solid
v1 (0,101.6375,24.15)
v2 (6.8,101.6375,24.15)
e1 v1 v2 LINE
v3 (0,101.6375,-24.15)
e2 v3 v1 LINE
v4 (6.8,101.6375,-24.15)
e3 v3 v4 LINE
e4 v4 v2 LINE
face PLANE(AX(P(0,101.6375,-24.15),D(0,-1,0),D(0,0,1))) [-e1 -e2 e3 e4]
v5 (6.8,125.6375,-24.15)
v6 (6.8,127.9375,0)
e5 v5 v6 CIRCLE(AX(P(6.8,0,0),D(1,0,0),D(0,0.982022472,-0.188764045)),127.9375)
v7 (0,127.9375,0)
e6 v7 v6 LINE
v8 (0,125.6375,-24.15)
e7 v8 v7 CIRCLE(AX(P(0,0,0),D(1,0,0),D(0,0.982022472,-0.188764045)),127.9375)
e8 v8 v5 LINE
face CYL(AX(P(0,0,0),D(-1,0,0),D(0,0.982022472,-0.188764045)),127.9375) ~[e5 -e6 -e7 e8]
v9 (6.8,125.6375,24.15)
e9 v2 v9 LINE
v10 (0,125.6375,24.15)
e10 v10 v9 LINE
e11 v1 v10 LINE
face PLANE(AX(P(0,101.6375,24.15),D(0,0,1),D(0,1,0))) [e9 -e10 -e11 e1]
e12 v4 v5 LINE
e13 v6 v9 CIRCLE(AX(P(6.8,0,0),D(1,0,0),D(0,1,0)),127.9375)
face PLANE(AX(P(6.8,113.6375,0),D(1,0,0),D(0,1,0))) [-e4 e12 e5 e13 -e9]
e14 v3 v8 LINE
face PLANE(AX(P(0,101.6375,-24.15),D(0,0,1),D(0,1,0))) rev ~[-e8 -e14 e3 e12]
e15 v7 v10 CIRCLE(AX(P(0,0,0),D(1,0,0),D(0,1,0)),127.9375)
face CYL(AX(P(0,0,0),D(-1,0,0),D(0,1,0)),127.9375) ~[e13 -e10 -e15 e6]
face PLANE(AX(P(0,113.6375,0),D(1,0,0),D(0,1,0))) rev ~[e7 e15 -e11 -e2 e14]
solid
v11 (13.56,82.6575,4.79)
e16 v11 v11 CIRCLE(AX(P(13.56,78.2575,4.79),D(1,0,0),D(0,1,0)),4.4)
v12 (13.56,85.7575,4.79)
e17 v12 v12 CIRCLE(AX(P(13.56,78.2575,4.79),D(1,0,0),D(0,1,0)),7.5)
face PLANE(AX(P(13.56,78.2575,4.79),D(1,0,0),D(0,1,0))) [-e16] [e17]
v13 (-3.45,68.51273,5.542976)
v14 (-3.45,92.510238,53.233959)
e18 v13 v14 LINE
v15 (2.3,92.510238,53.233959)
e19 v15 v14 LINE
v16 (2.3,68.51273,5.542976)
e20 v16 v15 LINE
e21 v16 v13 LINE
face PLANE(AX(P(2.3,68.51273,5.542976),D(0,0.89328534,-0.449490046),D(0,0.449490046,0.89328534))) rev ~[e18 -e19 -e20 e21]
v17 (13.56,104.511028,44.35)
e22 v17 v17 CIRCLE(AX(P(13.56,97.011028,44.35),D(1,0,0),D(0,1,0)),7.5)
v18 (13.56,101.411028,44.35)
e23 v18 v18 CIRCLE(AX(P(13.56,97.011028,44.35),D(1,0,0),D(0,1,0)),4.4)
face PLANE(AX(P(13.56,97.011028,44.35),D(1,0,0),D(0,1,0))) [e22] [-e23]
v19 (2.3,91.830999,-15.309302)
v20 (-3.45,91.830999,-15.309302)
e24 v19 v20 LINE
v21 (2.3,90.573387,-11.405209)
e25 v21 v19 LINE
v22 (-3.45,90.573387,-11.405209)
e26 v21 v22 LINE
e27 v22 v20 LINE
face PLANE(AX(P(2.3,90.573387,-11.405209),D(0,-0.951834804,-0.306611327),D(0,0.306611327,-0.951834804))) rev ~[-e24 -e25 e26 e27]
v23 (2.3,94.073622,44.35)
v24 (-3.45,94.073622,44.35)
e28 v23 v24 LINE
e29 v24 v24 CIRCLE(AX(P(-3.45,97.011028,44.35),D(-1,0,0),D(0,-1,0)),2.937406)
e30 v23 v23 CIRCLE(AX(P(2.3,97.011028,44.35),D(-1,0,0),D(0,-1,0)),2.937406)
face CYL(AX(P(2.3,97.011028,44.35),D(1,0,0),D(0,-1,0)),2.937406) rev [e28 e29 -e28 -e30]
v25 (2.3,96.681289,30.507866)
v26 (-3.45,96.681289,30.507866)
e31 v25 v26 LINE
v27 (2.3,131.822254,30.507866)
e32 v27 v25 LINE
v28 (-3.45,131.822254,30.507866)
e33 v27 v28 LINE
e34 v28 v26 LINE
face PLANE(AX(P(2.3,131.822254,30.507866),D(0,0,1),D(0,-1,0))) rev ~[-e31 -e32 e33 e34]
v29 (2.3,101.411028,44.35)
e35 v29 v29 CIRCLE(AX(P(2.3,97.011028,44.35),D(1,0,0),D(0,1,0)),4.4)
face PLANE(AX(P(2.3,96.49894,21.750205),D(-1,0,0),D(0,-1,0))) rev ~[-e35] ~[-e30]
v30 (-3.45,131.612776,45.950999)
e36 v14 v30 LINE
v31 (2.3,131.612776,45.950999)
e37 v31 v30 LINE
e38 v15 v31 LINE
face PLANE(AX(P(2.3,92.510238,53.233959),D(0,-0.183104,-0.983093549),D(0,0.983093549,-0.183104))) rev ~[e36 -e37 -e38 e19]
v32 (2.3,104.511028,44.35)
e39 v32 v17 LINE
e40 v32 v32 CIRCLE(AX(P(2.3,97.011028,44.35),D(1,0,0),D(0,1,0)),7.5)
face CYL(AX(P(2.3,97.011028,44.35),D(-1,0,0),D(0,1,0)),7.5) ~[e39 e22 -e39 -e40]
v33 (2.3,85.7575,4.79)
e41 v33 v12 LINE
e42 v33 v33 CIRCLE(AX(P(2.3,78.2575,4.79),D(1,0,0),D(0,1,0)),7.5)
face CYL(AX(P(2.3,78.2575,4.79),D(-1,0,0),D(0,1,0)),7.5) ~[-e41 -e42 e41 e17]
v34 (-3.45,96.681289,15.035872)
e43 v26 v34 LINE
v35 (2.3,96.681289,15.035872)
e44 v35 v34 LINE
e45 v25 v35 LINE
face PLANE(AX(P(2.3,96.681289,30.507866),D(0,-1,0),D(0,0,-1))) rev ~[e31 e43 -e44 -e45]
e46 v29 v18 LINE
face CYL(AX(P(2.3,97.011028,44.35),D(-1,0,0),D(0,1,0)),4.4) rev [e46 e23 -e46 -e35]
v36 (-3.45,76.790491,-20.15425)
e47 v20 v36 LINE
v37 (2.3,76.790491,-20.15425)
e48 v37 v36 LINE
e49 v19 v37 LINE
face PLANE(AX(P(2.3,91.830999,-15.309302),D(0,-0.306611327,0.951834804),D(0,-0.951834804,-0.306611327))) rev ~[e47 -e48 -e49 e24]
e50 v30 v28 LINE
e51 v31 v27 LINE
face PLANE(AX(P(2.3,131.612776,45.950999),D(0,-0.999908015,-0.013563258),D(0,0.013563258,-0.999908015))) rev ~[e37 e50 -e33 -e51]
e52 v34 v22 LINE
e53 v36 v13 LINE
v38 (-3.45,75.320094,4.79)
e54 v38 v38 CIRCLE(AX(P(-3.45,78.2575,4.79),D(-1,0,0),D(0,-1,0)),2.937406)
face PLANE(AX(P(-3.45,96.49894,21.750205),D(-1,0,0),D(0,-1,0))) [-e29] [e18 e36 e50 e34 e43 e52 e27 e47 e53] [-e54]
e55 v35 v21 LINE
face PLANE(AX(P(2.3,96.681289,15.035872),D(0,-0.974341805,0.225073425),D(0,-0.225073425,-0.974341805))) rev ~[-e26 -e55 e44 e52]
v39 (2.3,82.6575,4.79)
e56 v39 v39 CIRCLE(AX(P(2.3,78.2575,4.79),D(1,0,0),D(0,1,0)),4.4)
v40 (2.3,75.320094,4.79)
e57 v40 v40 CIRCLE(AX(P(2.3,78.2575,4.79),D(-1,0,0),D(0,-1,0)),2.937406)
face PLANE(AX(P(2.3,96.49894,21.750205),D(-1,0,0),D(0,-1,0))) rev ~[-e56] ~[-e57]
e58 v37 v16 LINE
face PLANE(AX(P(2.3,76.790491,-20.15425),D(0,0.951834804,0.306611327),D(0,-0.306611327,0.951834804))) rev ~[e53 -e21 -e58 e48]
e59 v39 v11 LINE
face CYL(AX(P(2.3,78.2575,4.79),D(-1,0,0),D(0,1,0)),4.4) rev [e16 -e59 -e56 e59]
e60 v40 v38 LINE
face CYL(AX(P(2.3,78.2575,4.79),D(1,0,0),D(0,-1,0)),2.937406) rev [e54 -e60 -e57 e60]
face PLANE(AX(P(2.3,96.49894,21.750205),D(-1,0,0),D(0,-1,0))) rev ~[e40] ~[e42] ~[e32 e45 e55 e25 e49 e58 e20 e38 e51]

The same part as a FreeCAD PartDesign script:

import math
import FreeCAD as App
import Part
import Sketcher


def add_polygon(sketch, points):
    """Adds a closed chain of lines whose ends are joined by coincident constraints."""
    first, n = sketch.GeometryCount, len(points)
    for a, b in zip(points, points[1:] + points[:1]):
        sketch.addGeometry(Part.LineSegment(App.Vector(*a, 0), App.Vector(*b, 0)), False)
    for i in range(n):
        sketch.addConstraint(Sketcher.Constraint("Coincident", first + i, 2, first + (i + 1) % n, 1))

doc = App.newDocument("Part")
body = doc.addObject("PartDesign::Body", "Body")

# Sketch on YZ plane
sketch1 = body.newObject("Sketcher::SketchObject", "Sketch")
sketch1.AttachmentSupport = (doc.getObject("YZ_Plane"), [""])
sketch1.MapMode = "FlatFace"
sketch1.addGeometry(Part.LineSegment(App.Vector(102, 24, 0), App.Vector(102, -24, 0)), False)
sketch1.addGeometry(Part.LineSegment(App.Vector(102, -24, 0), App.Vector(126, -24, 0)), False)
sketch1.addGeometry(Part.ArcOfCircle(Part.Circle(App.Vector(0, 0, 0), App.Vector(0, 0, 1), 128), math.radians(-10.88), math.radians(0)), False)
sketch1.addGeometry(Part.ArcOfCircle(Part.Circle(App.Vector(0, 0, 0), App.Vector(0, 0, 1), 128), math.radians(0), math.radians(10.88)), False)
sketch1.addGeometry(Part.LineSegment(App.Vector(126, 24, 0), App.Vector(102, 24, 0)), False)
sketch1.addConstraint(Sketcher.Constraint("Coincident", 0, 2, 1, 1))
sketch1.addConstraint(Sketcher.Constraint("Coincident", 1, 2, 2, 1))
sketch1.addConstraint(Sketcher.Constraint("Tangent", 2, 2, 3, 1))
sketch1.addConstraint(Sketcher.Constraint("Coincident", 3, 2, 4, 1))
sketch1.addConstraint(Sketcher.Constraint("Coincident", 4, 2, 0, 1))
sketch1.addConstraint(Sketcher.Constraint("Vertical", 0))
sketch1.addConstraint(Sketcher.Constraint("Horizontal", 1))
sketch1.addConstraint(Sketcher.Constraint("Horizontal", 4))
sketch1.addConstraint(Sketcher.Constraint("Coincident", 2, 3, -1, 1))
sketch1.addConstraint(Sketcher.Constraint("Equal", 2, 3))
sketch1.addConstraint(Sketcher.Constraint("PointOnObject", 2, 2, -1))
sketch1.addConstraint(Sketcher.Constraint("Vertical", 1, 2, 3, 2))
sketch1.addConstraint(Sketcher.Constraint("DistanceX", 1, 1, 1, 2, 24.0))
sketch1.addConstraint(Sketcher.Constraint("DistanceY", 0, 2, 0, 1, 48.3))
sketch1.addConstraint(Sketcher.Constraint("Radius", 2, 127.9375))
pad1 = body.newObject("PartDesign::Pad", "Pad")
pad1.Profile = sketch1
pad1.Length = 6.8
body2 = doc.addObject("PartDesign::Body", "Body001")

# Sketch on YZ plane
sketch2 = body2.newObject("Sketcher::SketchObject", "Sketch001")
sketch2.AttachmentSupport = (doc.getObject("YZ_Plane001"), [""])
sketch2.MapMode = "FlatFace"
sketch2.AttachmentOffset = App.Placement(App.Vector(0, 0, 2.3), App.Rotation())
add_polygon(sketch2, [(92.5, 53.2), (131.6, 46), (131.8, 30.5), (96.7, 30.5), (96.7, 15), (90.6, -11.4), (91.8, -15.3), (76.8, -20.2), (68.5, 5.5)])  # lines 0-8
sketch2.addGeometry(Part.Circle(App.Vector(78.3, 4.8, 0), App.Vector(0, 0, 1), 2.9), False)  # 9
sketch2.addGeometry(Part.Circle(App.Vector(97, 44.4, 0), App.Vector(0, 0, 1), 2.9), False)  # 10
sketch2.addConstraint(Sketcher.Constraint("Horizontal", 2))
sketch2.addConstraint(Sketcher.Constraint("Vertical", 3))
sketch2.addConstraint(Sketcher.Constraint("Equal", 9, 10))
sketch2.addConstraint(Sketcher.Constraint("Perpendicular", 5, 6))
sketch2.addConstraint(Sketcher.Constraint("Perpendicular", 6, 7))
sketch2.addConstraint(Sketcher.Constraint("Diameter", 9, 5.874811))
sketch2.addConstraint(Sketcher.Constraint("DistanceY", -1, 1, 9, 3, 4.79))
sketch2.addConstraint(Sketcher.Constraint("DistanceY", -1, 1, 10, 3, 44.35))
sketch2.addConstraint(Sketcher.Constraint("DistanceY", -1, 1, 0, 2, 45.950999))
sketch2.addConstraint(Sketcher.Constraint("DistanceX", -1, 1, 5, 2, 91.830999))
sketch2.addConstraint(Sketcher.Constraint("DistanceX", -1, 1, 9, 3, 78.2575))
sketch2.addConstraint(Sketcher.Constraint("DistanceY", 5, 2, -1, 1, 15.309302))
sketch2.addConstraint(Sketcher.Constraint("DistanceX", 6, 2, 3, 2, 19.890799))
sketch2.addConstraint(Sketcher.Constraint("Distance", 0, 39.774992))
sketch2.addConstraint(Sketcher.Constraint("Distance", 5, 4.101649))
sketch2.addConstraint(Sketcher.Constraint("Distance", 7, 26.997569))
sketch2.addConstraint(Sketcher.Constraint("DistanceX", 2, 2, 2, 1, 35.140965))
sketch2.addConstraint(Sketcher.Constraint("DistanceY", 3, 2, 3, 1, 15.471994))
sketch2.addConstraint(Sketcher.Constraint("DistanceX", -1, 1, 2, 2, 96.681289))
sketch2.addConstraint(Sketcher.Constraint("DistanceY", 4, 2, -1, 1, 11.405209))
sketch2.addConstraint(Sketcher.Constraint("DistanceX", -1, 1, 8, 2, 92.510238))
sketch2.addConstraint(Sketcher.Constraint("DistanceY", -1, 1, 8, 2, 53.233959))
sketch2.addConstraint(Sketcher.Constraint("DistanceX", 10, 3, 0, 2, 34.601748))
sketch2.addConstraint(Sketcher.Constraint("DistanceY", 4, 2, 3, 2, 26.441082))
pad2 = body2.newObject("PartDesign::Pad", "Pad001")
pad2.Profile = sketch2
pad2.Length = 5.75
pad2.Reversed = True

# Sketch on YZ plane
sketch3 = body2.newObject("Sketcher::SketchObject", "Sketch002")
sketch3.AttachmentSupport = (doc.getObject("YZ_Plane001"), [""])
sketch3.MapMode = "FlatFace"
sketch3.AttachmentOffset = App.Placement(App.Vector(0, 0, 2.3), App.Rotation())
sketch3.addGeometry(Part.Circle(App.Vector(97, 44.4, 0), App.Vector(0, 0, 1), 7.5), False)
sketch3.addGeometry(Part.Circle(App.Vector(97, 44.4, 0), App.Vector(0, 0, 1), 4.4), False)
sketch3.addGeometry(Part.Circle(App.Vector(78.3, 4.8, 0), App.Vector(0, 0, 1), 7.5), False)
sketch3.addGeometry(Part.Circle(App.Vector(78.3, 4.8, 0), App.Vector(0, 0, 1), 4.4), False)
sketch3.addConstraint(Sketcher.Constraint("Coincident", 1, 3, 0, 3))
sketch3.addConstraint(Sketcher.Constraint("Coincident", 3, 3, 2, 3))
sketch3.addConstraint(Sketcher.Constraint("Equal", 0, 2))
sketch3.addConstraint(Sketcher.Constraint("Equal", 1, 3))
sketch3.addConstraint(Sketcher.Constraint("Diameter", 0, 15.0))
sketch3.addConstraint(Sketcher.Constraint("Diameter", 1, 8.8))
sketch3.addConstraint(Sketcher.Constraint("DistanceY", -1, 1, 0, 3, 44.35))
sketch3.addConstraint(Sketcher.Constraint("DistanceY", -1, 1, 2, 3, 4.79))
sketch3.addConstraint(Sketcher.Constraint("DistanceX", -1, 1, 2, 3, 78.2575))
sketch3.addConstraint(Sketcher.Constraint("DistanceX", -1, 1, 0, 3, 97.011028))
pad3 = body2.newObject("PartDesign::Pad", "Pad002")
pad3.Profile = sketch3
pad3.Length = 11.26

doc.recompute()
